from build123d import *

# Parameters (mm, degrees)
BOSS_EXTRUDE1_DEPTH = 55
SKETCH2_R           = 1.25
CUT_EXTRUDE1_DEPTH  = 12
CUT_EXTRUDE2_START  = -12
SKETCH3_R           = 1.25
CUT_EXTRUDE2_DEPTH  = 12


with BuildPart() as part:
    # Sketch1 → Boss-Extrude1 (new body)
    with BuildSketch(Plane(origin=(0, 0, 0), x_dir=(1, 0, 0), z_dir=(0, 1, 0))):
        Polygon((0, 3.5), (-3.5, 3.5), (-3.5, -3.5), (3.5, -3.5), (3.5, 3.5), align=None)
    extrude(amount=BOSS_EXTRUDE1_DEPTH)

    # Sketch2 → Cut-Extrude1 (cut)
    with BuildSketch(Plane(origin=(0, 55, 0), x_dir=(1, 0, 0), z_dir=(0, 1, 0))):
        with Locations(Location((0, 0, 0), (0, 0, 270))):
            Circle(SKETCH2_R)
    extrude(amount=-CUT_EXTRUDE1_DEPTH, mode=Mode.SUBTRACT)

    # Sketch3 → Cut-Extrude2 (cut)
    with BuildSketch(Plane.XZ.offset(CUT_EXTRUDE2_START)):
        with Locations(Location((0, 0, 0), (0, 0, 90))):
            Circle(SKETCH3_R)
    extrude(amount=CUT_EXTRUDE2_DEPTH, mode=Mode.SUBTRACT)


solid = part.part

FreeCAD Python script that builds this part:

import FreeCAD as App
import Part
import Sketcher

V = App.Vector


def add_polygon(sketch, points):
    """Adds a closed chain of lines whose ends are joined by coincident constraints."""
    first, n = sketch.GeometryCount, len(points)
    for a, b in zip(points, points[1:] + points[:1]):
        sketch.addGeometry(Part.LineSegment(App.Vector(*a, 0), App.Vector(*b, 0)), False)
    for i in range(n):
        sketch.addConstraint(Sketcher.Constraint("Coincident", first + i, 2, first + (i + 1) % n, 1))

doc = App.newDocument("Part")
body = doc.addObject("PartDesign::Body", "Body")

# Sketch on XZ plane
sketch1 = body.newObject("Sketcher::SketchObject", "Sketch")
sketch1.AttachmentSupport = (doc.getObject("XZ_Plane"), [""])
sketch1.MapMode = "FlatFace"
add_polygon(sketch1, [(-4, -4), (-4, 4), (4, 4), (4, -4)])  # lines 0-3
sketch1.addConstraint([
    Sketcher.Constraint("Vertical", 0),
    Sketcher.Constraint("Horizontal", 1),
    Sketcher.Constraint("Vertical", 2),
    Sketcher.Constraint("Horizontal", 3),
    Sketcher.Constraint("Symmetric", 0, 2, 2, 2, -1, 1),
    Sketcher.Constraint("Equal", 3, 0),
    Sketcher.Constraint("DistanceX", 1, 1, 1, 2, 7.0),
])
pad1 = body.newObject("PartDesign::Pad", "Pad")
pad1.Profile = sketch1
pad1.Length = 55
pad1.Reversed = True

# Sketch on XZ plane
sketch2 = body.newObject("Sketcher::SketchObject", "Sketch001")
sketch2.AttachmentSupport = (doc.getObject("XZ_Plane"), [""])
sketch2.MapMode = "FlatFace"
sketch2.AttachmentOffset = App.Placement(V(0, 0, -55), App.Rotation())
sketch2.addGeometry(Part.Circle(V(0, 0, 0), V(0, 0, 1), 1.2), False)
sketch2.addConstraint([
    Sketcher.Constraint("Coincident", 0, 3, -1, 1),
    Sketcher.Constraint("Diameter", 0, 2.5),
])
pocket1 = body.newObject("PartDesign::Pocket", "Pocket")
pocket1.Profile = sketch2
pocket1.Length = 12
pocket1.Reversed = True

# Sketch on XZ plane
sketch3 = body.newObject("Sketcher::SketchObject", "Sketch002")
sketch3.AttachmentSupport = (doc.getObject("XZ_Plane"), [""])
sketch3.MapMode = "FlatFace"
sketch3.AttachmentOffset = App.Placement(V(0, 0, -12), App.Rotation())
sketch3.addGeometry(Part.Circle(V(0, 0, 0), V(0, 0, 1), 1.2), False)
sketch3.addConstraint([
    Sketcher.Constraint("Coincident", 0, 3, -1, 1),
    Sketcher.Constraint("Diameter", 0, 2.5),
])
pocket2 = body.newObject("PartDesign::Pocket", "Pocket001")
pocket2.Profile = sketch3
pocket2.Length = 12
pocket2.Reversed = True

doc.recompute()
